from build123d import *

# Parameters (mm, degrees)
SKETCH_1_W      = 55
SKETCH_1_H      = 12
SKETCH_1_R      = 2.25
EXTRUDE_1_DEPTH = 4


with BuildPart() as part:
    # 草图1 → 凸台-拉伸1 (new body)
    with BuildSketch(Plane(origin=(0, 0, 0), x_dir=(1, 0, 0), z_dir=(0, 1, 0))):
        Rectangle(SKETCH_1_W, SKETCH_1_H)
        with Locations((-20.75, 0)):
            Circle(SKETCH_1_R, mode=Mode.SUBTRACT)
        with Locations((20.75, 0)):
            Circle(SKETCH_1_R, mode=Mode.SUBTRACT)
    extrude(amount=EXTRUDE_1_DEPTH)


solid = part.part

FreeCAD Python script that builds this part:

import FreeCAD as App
import Part
import Sketcher


def add_polygon(sketch, points):
    """Adds a closed chain of lines whose ends are joined by coincident constraints."""
    first, n = sketch.GeometryCount, len(points)
    for a, b in zip(points, points[1:] + points[:1]):
        sketch.addGeometry(Part.LineSegment(App.Vector(*a, 0), App.Vector(*b, 0)), False)
    for i in range(n):
        sketch.addConstraint(Sketcher.Constraint("Coincident", first + i, 2, first + (i + 1) % n, 1))

doc = App.newDocument("Part")
params = doc.addObject("Spreadsheet::Sheet", "Params")
for row, (alias, value) in enumerate([
    ("sketch1_diameter", "4.5 mm"),
    ("sketch1_width", "55 mm"),
    ("sketch1_height", "12 mm"),
    ("pad1_length", "4 mm"),
], start=1):
    params.set(f"A{row}", alias)
    params.set(f"B{row}", "=" + value)
    params.setAlias(f"B{row}", alias)

body = doc.addObject("PartDesign::Body", "Body")

sketch1 = doc.addObject("Sketcher::SketchObject", "Sketch")
body.addObject(sketch1)
sketch1.AttachmentSupport = (doc.XZ_Plane, [""])
sketch1.MapMode = "FlatFace"
add_polygon(sketch1, [(-27.5, -6), (-27.5, 6), (27.5, 6), (27.5, -6)])
sketch1.addGeometry(Part.Circle(App.Vector(-20.8, 0, 0), App.Vector(0, 0, 1), 2.2), False)
sketch1.addGeometry(Part.Circle(App.Vector(20.8, 0, 0), App.Vector(0, 0, 1), 2.2), False)
sketch1.addConstraint([
    Sketcher.Constraint("Vertical", 0),
    Sketcher.Constraint("Horizontal", 1),
    Sketcher.Constraint("Vertical", 2),
    Sketcher.Constraint("Horizontal", 3),
    Sketcher.Constraint("Equal", 4, 5),
    Sketcher.Constraint("Symmetric", 4, 3, 5, 3, -1, 1),
    Sketcher.Constraint("Symmetric", 0, 2, 2, 2, -1, 1),
    Sketcher.Constraint("PointOnObject", 4, 3, -1),
    Sketcher.Constraint("Diameter", 4, 4.5),
    Sketcher.Constraint("DistanceX", 1, 1, 1, 2, 55.0),
    Sketcher.Constraint("DistanceY", 0, 1, 0, 2, 12.0),
    Sketcher.Constraint("DistanceX", 4, 3, 5, 3, 41.5),
])
sketch1.setExpression("Constraints[12]", "Params.sketch1_diameter")
sketch1.setExpression("Constraints[13]", "Params.sketch1_width")
sketch1.setExpression("Constraints[14]", "Params.sketch1_height")
pad1 = doc.addObject("PartDesign::Pad", "Pad")
body.addObject(pad1)
pad1.Profile = sketch1
pad1.setExpression("Length", "Params.pad1_length")
pad1.Reversed = True

doc.recompute()
